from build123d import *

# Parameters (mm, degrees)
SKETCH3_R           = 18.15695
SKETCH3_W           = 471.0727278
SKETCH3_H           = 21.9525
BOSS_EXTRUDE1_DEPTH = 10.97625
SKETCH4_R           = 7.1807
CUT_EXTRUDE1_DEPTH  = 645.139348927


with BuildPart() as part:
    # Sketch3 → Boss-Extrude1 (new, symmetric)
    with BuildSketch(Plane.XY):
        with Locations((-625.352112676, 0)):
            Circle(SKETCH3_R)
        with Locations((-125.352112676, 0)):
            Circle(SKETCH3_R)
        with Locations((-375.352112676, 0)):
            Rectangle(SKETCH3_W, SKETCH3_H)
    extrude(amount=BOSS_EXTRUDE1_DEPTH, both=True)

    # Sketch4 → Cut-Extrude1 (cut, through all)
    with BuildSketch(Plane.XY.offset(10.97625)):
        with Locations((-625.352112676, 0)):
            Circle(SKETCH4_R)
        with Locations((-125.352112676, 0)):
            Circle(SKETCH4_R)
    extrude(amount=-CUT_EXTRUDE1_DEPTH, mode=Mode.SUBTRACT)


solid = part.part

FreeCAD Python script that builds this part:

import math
import FreeCAD as App
import Part
import Sketcher
Q = App.Units.Quantity

doc = App.newDocument("Part")
body = doc.addObject("PartDesign::Body", "Body")

sketch1 = body.newObject("Sketcher::SketchObject", "Sketch")
sketch1.AttachmentSupport = (doc.getObject("XY_Plane"), [""])
sketch1.MapMode = "FlatFace"
sketch1.addGeometry([
    Part.LineSegment(App.Vector(-611, -11, 0), App.Vector(-140, -11, 0)),
    Part.ArcOfCircle(Part.Circle(App.Vector(-125, 0, 0), App.Vector(0, 0, 1), 18), math.radians(-143), math.radians(143)),
    Part.LineSegment(App.Vector(-140, 11, 0), App.Vector(-611, 11, 0)),
    Part.ArcOfCircle(Part.Circle(App.Vector(-625, 0, 0), App.Vector(0, 0, 1), 18), math.radians(37), math.radians(323)),
], False)
sketch1.addConstraint([
    Sketcher.Constraint("Coincident", 0, 2, 1, 1),
    Sketcher.Constraint("Coincident", 1, 2, 2, 1),
    Sketcher.Constraint("Coincident", 2, 2, 3, 1),
    Sketcher.Constraint("Coincident", 3, 2, 0, 1),
    Sketcher.Constraint("Horizontal", 0),
    Sketcher.Constraint("Horizontal", 2),
    Sketcher.Constraint("Equal", 1, 3),
    Sketcher.Constraint("Symmetric", 0, 2, 1, 2, -1),
    Sketcher.Constraint("PointOnObject", 3, 3, -1),
    Sketcher.Constraint("DistanceX", 3, 3, 1, 3, Q("500 mm")),
    Sketcher.Constraint("Radius", 1, Q("18.15695 mm")),
    Sketcher.Constraint("DistanceY", 0, 2, 1, 2, Q("21.9525 mm")),
    Sketcher.Constraint("DistanceX", 0, 2, -1, 1, Q("139.815749 mm")),
])
pad1 = body.newObject("PartDesign::Pad", "Pad")
pad1.Profile = sketch1
pad1.Length = 21.9525
pad1.Midplane = True

sketch2 = body.newObject("Sketcher::SketchObject", "Sketch001")
sketch2.AttachmentSupport = (doc.getObject("XY_Plane"), [""])
sketch2.MapMode = "FlatFace"
sketch2.AttachmentOffset = App.Placement(App.Vector(0, 0, 10.97625), App.Rotation())
sketch2.addGeometry([
    Part.Circle(App.Vector(-625, 0, 0), App.Vector(0, 0, 1), 7),
    Part.Circle(App.Vector(-125, 0, 0), App.Vector(0, 0, 1), 7),
], False)
sketch2.addConstraint([
    Sketcher.Constraint("Equal", 0, 1),
    Sketcher.Constraint("PointOnObject", 0, 3, -1),
    Sketcher.Constraint("PointOnObject", 1, 3, -1),
    Sketcher.Constraint("DistanceX", 0, 3, 1, 3, Q("500 mm")),
    Sketcher.Constraint("Diameter", 0, Q("14.3614 mm")),
    Sketcher.Constraint("DistanceX", 0, 3, -1, 1, Q("625.352113 mm")),
])
pocket1 = body.newObject("PartDesign::Pocket", "Pocket")
pocket1.Profile = sketch2
pocket1.Type = "ThroughAll"

doc.recompute()
